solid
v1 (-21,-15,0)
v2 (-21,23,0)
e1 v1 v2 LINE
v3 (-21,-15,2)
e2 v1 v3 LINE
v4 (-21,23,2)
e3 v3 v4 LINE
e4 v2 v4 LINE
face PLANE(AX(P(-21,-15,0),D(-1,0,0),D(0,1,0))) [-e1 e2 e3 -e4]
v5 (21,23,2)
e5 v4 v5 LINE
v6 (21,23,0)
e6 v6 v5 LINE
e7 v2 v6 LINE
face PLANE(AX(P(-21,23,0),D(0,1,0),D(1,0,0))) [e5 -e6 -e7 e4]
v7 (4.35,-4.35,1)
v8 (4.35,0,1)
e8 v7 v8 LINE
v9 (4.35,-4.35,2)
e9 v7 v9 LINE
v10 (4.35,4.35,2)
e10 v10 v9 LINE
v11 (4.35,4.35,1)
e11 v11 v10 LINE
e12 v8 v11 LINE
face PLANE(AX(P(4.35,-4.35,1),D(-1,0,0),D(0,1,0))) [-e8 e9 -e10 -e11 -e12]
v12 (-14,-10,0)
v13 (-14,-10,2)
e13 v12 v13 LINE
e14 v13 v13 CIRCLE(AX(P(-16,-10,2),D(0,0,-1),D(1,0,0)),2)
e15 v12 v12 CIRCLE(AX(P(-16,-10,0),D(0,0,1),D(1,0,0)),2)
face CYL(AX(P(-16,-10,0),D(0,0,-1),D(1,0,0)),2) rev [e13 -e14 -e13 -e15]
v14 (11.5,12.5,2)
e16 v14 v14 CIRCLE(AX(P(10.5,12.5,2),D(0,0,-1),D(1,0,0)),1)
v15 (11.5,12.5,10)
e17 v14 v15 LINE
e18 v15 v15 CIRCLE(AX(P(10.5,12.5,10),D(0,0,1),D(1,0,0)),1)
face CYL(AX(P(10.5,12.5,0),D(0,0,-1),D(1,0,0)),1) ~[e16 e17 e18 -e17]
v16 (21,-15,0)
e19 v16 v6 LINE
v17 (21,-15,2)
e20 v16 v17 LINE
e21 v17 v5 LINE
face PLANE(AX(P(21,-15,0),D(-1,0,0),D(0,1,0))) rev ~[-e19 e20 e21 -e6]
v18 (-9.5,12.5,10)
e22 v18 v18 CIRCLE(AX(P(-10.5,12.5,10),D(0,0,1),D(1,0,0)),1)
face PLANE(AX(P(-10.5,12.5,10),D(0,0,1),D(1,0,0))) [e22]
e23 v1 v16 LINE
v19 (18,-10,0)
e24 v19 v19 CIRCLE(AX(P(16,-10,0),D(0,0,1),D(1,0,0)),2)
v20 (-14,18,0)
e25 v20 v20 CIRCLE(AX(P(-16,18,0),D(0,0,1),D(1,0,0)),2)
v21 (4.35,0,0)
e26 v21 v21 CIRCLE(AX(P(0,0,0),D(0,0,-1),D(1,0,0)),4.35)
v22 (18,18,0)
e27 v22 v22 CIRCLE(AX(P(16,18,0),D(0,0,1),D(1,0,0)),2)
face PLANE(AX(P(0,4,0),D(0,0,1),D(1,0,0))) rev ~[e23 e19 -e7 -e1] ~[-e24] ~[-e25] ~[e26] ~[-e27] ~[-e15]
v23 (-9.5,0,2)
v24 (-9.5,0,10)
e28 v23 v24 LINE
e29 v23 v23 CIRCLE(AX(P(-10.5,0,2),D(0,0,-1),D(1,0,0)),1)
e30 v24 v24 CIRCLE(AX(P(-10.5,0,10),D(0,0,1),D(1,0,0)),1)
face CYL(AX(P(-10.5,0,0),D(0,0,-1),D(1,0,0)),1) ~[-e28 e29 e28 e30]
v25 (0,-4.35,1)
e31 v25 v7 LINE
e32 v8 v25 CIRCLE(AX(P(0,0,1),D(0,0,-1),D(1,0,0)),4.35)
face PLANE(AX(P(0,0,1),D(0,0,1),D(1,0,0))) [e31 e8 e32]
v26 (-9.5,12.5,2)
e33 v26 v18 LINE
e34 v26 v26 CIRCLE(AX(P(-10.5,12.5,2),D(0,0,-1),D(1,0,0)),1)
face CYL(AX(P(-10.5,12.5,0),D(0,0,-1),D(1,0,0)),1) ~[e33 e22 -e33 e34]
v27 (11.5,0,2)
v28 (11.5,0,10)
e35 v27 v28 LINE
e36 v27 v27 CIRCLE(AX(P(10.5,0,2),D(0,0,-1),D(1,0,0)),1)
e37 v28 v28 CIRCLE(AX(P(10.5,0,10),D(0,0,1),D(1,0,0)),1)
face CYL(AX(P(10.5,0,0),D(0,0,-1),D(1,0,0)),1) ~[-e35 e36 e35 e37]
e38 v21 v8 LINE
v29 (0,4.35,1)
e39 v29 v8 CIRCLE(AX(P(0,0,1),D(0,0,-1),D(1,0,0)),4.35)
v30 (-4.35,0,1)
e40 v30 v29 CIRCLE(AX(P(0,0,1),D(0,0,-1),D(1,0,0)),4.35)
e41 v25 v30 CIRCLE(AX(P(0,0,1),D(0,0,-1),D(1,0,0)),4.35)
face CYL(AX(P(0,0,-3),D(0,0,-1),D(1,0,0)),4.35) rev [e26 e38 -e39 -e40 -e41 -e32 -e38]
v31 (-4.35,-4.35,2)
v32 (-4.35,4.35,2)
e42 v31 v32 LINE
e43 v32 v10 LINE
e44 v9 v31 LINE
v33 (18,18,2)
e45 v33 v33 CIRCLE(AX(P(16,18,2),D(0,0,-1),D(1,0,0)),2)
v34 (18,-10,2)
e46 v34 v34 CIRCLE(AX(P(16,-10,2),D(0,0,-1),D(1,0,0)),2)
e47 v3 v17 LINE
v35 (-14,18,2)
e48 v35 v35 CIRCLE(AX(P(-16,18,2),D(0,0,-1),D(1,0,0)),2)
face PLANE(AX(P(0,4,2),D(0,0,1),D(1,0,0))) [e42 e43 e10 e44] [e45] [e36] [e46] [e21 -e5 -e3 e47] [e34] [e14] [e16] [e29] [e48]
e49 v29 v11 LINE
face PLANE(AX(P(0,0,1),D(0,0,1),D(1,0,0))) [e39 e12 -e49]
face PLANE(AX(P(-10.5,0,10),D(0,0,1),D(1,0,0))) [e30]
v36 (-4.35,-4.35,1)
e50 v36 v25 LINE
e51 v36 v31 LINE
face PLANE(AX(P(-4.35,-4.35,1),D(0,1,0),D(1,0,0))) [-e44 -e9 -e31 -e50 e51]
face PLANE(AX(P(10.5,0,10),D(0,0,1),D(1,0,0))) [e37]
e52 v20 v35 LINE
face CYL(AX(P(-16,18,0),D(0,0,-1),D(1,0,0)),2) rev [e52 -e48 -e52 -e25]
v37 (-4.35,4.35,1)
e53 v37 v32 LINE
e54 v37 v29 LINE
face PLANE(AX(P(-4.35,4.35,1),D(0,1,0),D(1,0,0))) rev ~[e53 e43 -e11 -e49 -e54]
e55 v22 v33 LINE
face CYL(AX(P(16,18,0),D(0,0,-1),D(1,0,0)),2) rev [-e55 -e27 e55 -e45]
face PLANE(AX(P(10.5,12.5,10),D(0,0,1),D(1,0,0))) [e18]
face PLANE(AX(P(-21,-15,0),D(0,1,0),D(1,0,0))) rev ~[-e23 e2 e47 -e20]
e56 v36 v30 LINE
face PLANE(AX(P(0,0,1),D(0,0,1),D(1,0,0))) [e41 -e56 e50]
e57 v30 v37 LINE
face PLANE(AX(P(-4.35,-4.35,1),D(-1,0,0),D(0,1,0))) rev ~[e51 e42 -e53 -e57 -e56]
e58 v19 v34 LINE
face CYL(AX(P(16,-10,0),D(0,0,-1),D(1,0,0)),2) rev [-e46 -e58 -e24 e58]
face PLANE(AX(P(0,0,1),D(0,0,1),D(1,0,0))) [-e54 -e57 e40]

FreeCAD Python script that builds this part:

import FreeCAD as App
import Part
import Sketcher

V = App.Vector
Q = App.Units.Quantity


def add_polygon(sketch, points):
    """Adds a closed chain of lines whose ends are joined by coincident constraints."""
    first, n = sketch.GeometryCount, len(points)
    for a, b in zip(points, points[1:] + points[:1]):
        sketch.addGeometry(Part.LineSegment(App.Vector(*a, 0), App.Vector(*b, 0)), False)
    for i in range(n):
        sketch.addConstraint(Sketcher.Constraint("Coincident", first + i, 2, first + (i + 1) % n, 1))

doc = App.newDocument("Part")
params = doc.addObject("Spreadsheet::Sheet", "Params")
for row, (alias, value) in enumerate([
    ("sketch1_diameter", "2 mm"),
    ("pad1_length", "10 mm"),
    ("sketch2_diameter", "2 mm"),
    ("pad2_length", "10 mm"),
    ("sketch3_diameter", "2 mm"),
    ("pad3_length", "10 mm"),
    ("sketch4_diameter", "4 mm"),
    ("pad4_length", "10 mm"),
    ("sketch5_diameter", "4 mm"),
    ("pad5_length", "10 mm"),
    ("sketch6_diameter", "4 mm"),
    ("pad6_length", "10 mm"),
    ("sketch7_diameter", "4 mm"),
    ("pad7_length", "10 mm"),
    ("sketch8_diameter", "8.7 mm"),
    ("pad8_length", "10 mm"),
    ("sketch9_width", "8.7 mm"),
    ("pad9_length", "2 mm"),
    ("sketch10_width", "42 mm"),
    ("sketch10_height", "38 mm"),
    ("pad10_length", "2 mm"),
    ("sketch11_diameter", "2 mm"),
    ("pad11_length", "10 mm"),
], start=1):
    params.set(f"A{row}", alias)
    params.set(f"B{row}", "=" + value)
    params.setAlias(f"B{row}", alias)

body = doc.addObject("PartDesign::Body", "Body")

sketch1 = body.newObject("Sketcher::SketchObject", "Sketch")
sketch1.AttachmentSupport = (doc.getObject("XY_Plane"), [""])
sketch1.MapMode = "FlatFace"
sketch1.addGeometry(Part.Circle(V(10.5, 0, 0), V(0, 0, 1), 1), False)
sketch1.addConstraint([
    Sketcher.Constraint("PointOnObject", 0, 3, -1),
    Sketcher.Constraint("Diameter", 0, Q("2 mm")),
    Sketcher.Constraint("DistanceX", -1, 1, 0, 3, Q("10.5 mm")),
])
sketch1.setExpression("Constraints[1]", "Params.sketch1_diameter")
pad1 = body.newObject("PartDesign::Pad", "Pad")
pad1.Profile = sketch1
pad1.setExpression("Length", "Params.pad1_length")
body2 = doc.addObject("PartDesign::Body", "Body001")

sketch2 = body2.newObject("Sketcher::SketchObject", "Sketch001")
sketch2.AttachmentSupport = (doc.getObject("XY_Plane001"), [""])
sketch2.MapMode = "FlatFace"
sketch2.addGeometry(Part.Circle(V(-10.5, 12.5, 0), V(0, 0, 1), 1), False)
sketch2.addConstraint([
    Sketcher.Constraint("Diameter", 0, Q("2 mm")),
    Sketcher.Constraint("DistanceX", 0, 3, -1, 1, Q("10.5 mm")),
    Sketcher.Constraint("DistanceY", -1, 1, 0, 3, Q("12.5 mm")),
])
sketch2.setExpression("Constraints[0]", "Params.sketch2_diameter")
pad2 = body2.newObject("PartDesign::Pad", "Pad001")
pad2.Profile = sketch2
pad2.setExpression("Length", "Params.pad2_length")
body3 = doc.addObject("PartDesign::Body", "Body002")

sketch3 = body3.newObject("Sketcher::SketchObject", "Sketch002")
sketch3.AttachmentSupport = (doc.getObject("XY_Plane002"), [""])
sketch3.MapMode = "FlatFace"
sketch3.addGeometry(Part.Circle(V(10.5, 12.5, 0), V(0, 0, 1), 1), False)
sketch3.addConstraint([
    Sketcher.Constraint("Diameter", 0, Q("2 mm")),
    Sketcher.Constraint("DistanceX", -1, 1, 0, 3, Q("10.5 mm")),
    Sketcher.Constraint("DistanceY", -1, 1, 0, 3, Q("12.5 mm")),
])
sketch3.setExpression("Constraints[0]", "Params.sketch3_diameter")
pad3 = body3.newObject("PartDesign::Pad", "Pad002")
pad3.Profile = sketch3
pad3.setExpression("Length", "Params.pad3_length")
body4 = doc.addObject("PartDesign::Body", "Body003")

sketch4 = body4.newObject("Sketcher::SketchObject", "Sketch003")
sketch4.AttachmentSupport = (doc.getObject("XY_Plane003"), [""])
sketch4.MapMode = "FlatFace"
sketch4.addGeometry(Part.Circle(V(-16, -10, 0), V(0, 0, 1), 2), False)
sketch4.addConstraint([
    Sketcher.Constraint("Diameter", 0, Q("4 mm")),
    Sketcher.Constraint("DistanceX", 0, 3, -1, 1, Q("16 mm")),
    Sketcher.Constraint("DistanceY", 0, 3, -1, 1, Q("10 mm")),
])
sketch4.setExpression("Constraints[0]", "Params.sketch4_diameter")
pad4 = body4.newObject("PartDesign::Pad", "Pad003")
pad4.Profile = sketch4
pad4.setExpression("Length", "Params.pad4_length")
body5 = doc.addObject("PartDesign::Body", "Body004")

sketch5 = body5.newObject("Sketcher::SketchObject", "Sketch004")
sketch5.AttachmentSupport = (doc.getObject("XY_Plane004"), [""])
sketch5.MapMode = "FlatFace"
sketch5.addGeometry(Part.Circle(V(16, 18, 0), V(0, 0, 1), 2), False)
sketch5.addConstraint([
    Sketcher.Constraint("Diameter", 0, Q("4 mm")),
    Sketcher.Constraint("DistanceX", -1, 1, 0, 3, Q("16 mm")),
    Sketcher.Constraint("DistanceY", -1, 1, 0, 3, Q("18 mm")),
])
sketch5.setExpression("Constraints[0]", "Params.sketch5_diameter")
pad5 = body5.newObject("PartDesign::Pad", "Pad004")
pad5.Profile = sketch5
pad5.setExpression("Length", "Params.pad5_length")
body6 = doc.addObject("PartDesign::Body", "Body005")

sketch6 = body6.newObject("Sketcher::SketchObject", "Sketch005")
sketch6.AttachmentSupport = (doc.getObject("XY_Plane005"), [""])
sketch6.MapMode = "FlatFace"
sketch6.addGeometry(Part.Circle(V(16, -10, 0), V(0, 0, 1), 2), False)
sketch6.addConstraint([
    Sketcher.Constraint("Diameter", 0, Q("4 mm")),
    Sketcher.Constraint("DistanceX", -1, 1, 0, 3, Q("16 mm")),
    Sketcher.Constraint("DistanceY", 0, 3, -1, 1, Q("10 mm")),
])
sketch6.setExpression("Constraints[0]", "Params.sketch6_diameter")
pad6 = body6.newObject("PartDesign::Pad", "Pad005")
pad6.Profile = sketch6
pad6.setExpression("Length", "Params.pad6_length")
body7 = doc.addObject("PartDesign::Body", "Body006")

sketch7 = body7.newObject("Sketcher::SketchObject", "Sketch006")
sketch7.AttachmentSupport = (doc.getObject("XY_Plane006"), [""])
sketch7.MapMode = "FlatFace"
sketch7.addGeometry(Part.Circle(V(-16, 18, 0), V(0, 0, 1), 2), False)
sketch7.addConstraint([
    Sketcher.Constraint("Diameter", 0, Q("4 mm")),
    Sketcher.Constraint("DistanceX", 0, 3, -1, 1, Q("16 mm")),
    Sketcher.Constraint("DistanceY", -1, 1, 0, 3, Q("18 mm")),
])
sketch7.setExpression("Constraints[0]", "Params.sketch7_diameter")
pad7 = body7.newObject("PartDesign::Pad", "Pad006")
pad7.Profile = sketch7
pad7.setExpression("Length", "Params.pad7_length")
body8 = doc.addObject("PartDesign::Body", "Body007")

sketch8 = body8.newObject("Sketcher::SketchObject", "Sketch007")
sketch8.AttachmentSupport = (doc.getObject("XY_Plane007"), [""])
sketch8.MapMode = "FlatFace"
sketch8.AttachmentOffset = App.Placement(V(0, 0, -3), App.Rotation())
sketch8.addGeometry(Part.Circle(V(0, 0, 0), V(0, 0, 1), 4.3), False)
sketch8.addConstraint([
    Sketcher.Constraint("Coincident", 0, 3, -1, 1),
    Sketcher.Constraint("Diameter", 0, Q("8.7 mm")),
])
sketch8.setExpression("Constraints[1]", "Params.sketch8_diameter")
pad8 = body8.newObject("PartDesign::Pad", "Pad007")
pad8.Profile = sketch8
pad8.setExpression("Length", "Params.pad8_length")
body9 = doc.addObject("PartDesign::Body", "Body008")

sketch9 = body9.newObject("Sketcher::SketchObject", "Sketch008")
sketch9.AttachmentSupport = (doc.getObject("XY_Plane008"), [""])
sketch9.MapMode = "FlatFace"
sketch9.AttachmentOffset = App.Placement(V(0, 0, 1), App.Rotation())
add_polygon(sketch9, [(-4, 4), (-4, -4), (4, -4), (4, 4)])
sketch9.addConstraint([
    Sketcher.Constraint("Vertical", 0),
    Sketcher.Constraint("Horizontal", 1),
    Sketcher.Constraint("Vertical", 2),
    Sketcher.Constraint("Horizontal", 3),
    Sketcher.Constraint("Symmetric", 0, 2, 2, 2, -1, 1),
    Sketcher.Constraint("Equal", 3, 0),
    Sketcher.Constraint("DistanceX", 1, 1, 1, 2, Q("8.7 mm")),
])
sketch9.setExpression("Constraints[10]", "Params.sketch9_width")
pad9 = body9.newObject("PartDesign::Pad", "Pad008")
pad9.Profile = sketch9
pad9.setExpression("Length", "Params.pad9_length")
body10 = doc.addObject("PartDesign::Body", "Body009")

sketch10 = body10.newObject("Sketcher::SketchObject", "Sketch009")
sketch10.AttachmentSupport = (doc.getObject("XY_Plane009"), [""])
sketch10.MapMode = "FlatFace"
add_polygon(sketch10, [(-21, 23), (-21, -15), (21, -15), (21, 23)])
sketch10.addConstraint([
    Sketcher.Constraint("Vertical", 0),
    Sketcher.Constraint("Horizontal", 1),
    Sketcher.Constraint("Vertical", 2),
    Sketcher.Constraint("Horizontal", 3),
    Sketcher.Constraint("DistanceX", 1, 1, 1, 2, Q("42 mm")),
    Sketcher.Constraint("DistanceY", 0, 2, 0, 1, Q("38 mm")),
    Sketcher.Constraint("DistanceX", 0, 2, -1, 1, Q("21 mm")),
    Sketcher.Constraint("DistanceY", 0, 2, -1, 1, Q("15 mm")),
])
sketch10.setExpression("Constraints[8]", "Params.sketch10_width")
sketch10.setExpression("Constraints[9]", "Params.sketch10_height")
pad10 = body10.newObject("PartDesign::Pad", "Pad009")
pad10.Profile = sketch10
pad10.setExpression("Length", "Params.pad10_length")
doc.recompute()

boolean = body10.newObject("PartDesign::Boolean", "Boolean")
boolean.Type = "Cut"
boolean.addObjects([body9])
doc.recompute()

boolean2 = body10.newObject("PartDesign::Boolean", "Boolean001")
boolean2.Type = "Cut"
boolean2.addObjects([body8])
doc.recompute()

boolean3 = body10.newObject("PartDesign::Boolean", "Boolean002")
boolean3.Type = "Cut"
boolean3.addObjects([body7])
doc.recompute()

boolean4 = body10.newObject("PartDesign::Boolean", "Boolean003")
boolean4.Type = "Cut"
boolean4.addObjects([body6])
doc.recompute()

boolean5 = body10.newObject("PartDesign::Boolean", "Boolean004")
boolean5.Type = "Cut"
boolean5.addObjects([body5])
doc.recompute()

boolean6 = body10.newObject("PartDesign::Boolean", "Boolean005")
boolean6.Type = "Cut"
boolean6.addObjects([body4])
body11 = doc.addObject("PartDesign::Body", "Body010")
body11.AllowCompound = True

sketch11 = body11.newObject("Sketcher::SketchObject", "Sketch010")
sketch11.AttachmentSupport = (doc.getObject("XY_Plane010"), [""])
sketch11.MapMode = "FlatFace"
sketch11.addGeometry(Part.Circle(V(-10.5, 0, 0), V(0, 0, 1), 1), False)
sketch11.addConstraint([
    Sketcher.Constraint("PointOnObject", 0, 3, -1),
    Sketcher.Constraint("Diameter", 0, Q("2 mm")),
    Sketcher.Constraint("DistanceX", 0, 3, -1, 1, Q("10.5 mm")),
])
sketch11.setExpression("Constraints[1]", "Params.sketch11_diameter")
pad11 = body11.newObject("PartDesign::Pad", "Pad010")
pad11.Profile = sketch11
pad11.setExpression("Length", "Params.pad11_length")
doc.recompute()

boolean7 = body11.newObject("PartDesign::Boolean", "Boolean006")
boolean7.Type = "Fuse"
boolean7.addObjects([body])
doc.recompute()

boolean8 = body11.newObject("PartDesign::Boolean", "Boolean007")
boolean8.Type = "Fuse"
boolean8.addObjects([body2])
doc.recompute()

boolean9 = body11.newObject("PartDesign::Boolean", "Boolean008")
boolean9.Type = "Fuse"
boolean9.addObjects([body3])
doc.recompute()

boolean10 = body11.newObject("PartDesign::Boolean", "Boolean009")
boolean10.Type = "Fuse"
boolean10.addObjects([body10])

doc.recompute()
